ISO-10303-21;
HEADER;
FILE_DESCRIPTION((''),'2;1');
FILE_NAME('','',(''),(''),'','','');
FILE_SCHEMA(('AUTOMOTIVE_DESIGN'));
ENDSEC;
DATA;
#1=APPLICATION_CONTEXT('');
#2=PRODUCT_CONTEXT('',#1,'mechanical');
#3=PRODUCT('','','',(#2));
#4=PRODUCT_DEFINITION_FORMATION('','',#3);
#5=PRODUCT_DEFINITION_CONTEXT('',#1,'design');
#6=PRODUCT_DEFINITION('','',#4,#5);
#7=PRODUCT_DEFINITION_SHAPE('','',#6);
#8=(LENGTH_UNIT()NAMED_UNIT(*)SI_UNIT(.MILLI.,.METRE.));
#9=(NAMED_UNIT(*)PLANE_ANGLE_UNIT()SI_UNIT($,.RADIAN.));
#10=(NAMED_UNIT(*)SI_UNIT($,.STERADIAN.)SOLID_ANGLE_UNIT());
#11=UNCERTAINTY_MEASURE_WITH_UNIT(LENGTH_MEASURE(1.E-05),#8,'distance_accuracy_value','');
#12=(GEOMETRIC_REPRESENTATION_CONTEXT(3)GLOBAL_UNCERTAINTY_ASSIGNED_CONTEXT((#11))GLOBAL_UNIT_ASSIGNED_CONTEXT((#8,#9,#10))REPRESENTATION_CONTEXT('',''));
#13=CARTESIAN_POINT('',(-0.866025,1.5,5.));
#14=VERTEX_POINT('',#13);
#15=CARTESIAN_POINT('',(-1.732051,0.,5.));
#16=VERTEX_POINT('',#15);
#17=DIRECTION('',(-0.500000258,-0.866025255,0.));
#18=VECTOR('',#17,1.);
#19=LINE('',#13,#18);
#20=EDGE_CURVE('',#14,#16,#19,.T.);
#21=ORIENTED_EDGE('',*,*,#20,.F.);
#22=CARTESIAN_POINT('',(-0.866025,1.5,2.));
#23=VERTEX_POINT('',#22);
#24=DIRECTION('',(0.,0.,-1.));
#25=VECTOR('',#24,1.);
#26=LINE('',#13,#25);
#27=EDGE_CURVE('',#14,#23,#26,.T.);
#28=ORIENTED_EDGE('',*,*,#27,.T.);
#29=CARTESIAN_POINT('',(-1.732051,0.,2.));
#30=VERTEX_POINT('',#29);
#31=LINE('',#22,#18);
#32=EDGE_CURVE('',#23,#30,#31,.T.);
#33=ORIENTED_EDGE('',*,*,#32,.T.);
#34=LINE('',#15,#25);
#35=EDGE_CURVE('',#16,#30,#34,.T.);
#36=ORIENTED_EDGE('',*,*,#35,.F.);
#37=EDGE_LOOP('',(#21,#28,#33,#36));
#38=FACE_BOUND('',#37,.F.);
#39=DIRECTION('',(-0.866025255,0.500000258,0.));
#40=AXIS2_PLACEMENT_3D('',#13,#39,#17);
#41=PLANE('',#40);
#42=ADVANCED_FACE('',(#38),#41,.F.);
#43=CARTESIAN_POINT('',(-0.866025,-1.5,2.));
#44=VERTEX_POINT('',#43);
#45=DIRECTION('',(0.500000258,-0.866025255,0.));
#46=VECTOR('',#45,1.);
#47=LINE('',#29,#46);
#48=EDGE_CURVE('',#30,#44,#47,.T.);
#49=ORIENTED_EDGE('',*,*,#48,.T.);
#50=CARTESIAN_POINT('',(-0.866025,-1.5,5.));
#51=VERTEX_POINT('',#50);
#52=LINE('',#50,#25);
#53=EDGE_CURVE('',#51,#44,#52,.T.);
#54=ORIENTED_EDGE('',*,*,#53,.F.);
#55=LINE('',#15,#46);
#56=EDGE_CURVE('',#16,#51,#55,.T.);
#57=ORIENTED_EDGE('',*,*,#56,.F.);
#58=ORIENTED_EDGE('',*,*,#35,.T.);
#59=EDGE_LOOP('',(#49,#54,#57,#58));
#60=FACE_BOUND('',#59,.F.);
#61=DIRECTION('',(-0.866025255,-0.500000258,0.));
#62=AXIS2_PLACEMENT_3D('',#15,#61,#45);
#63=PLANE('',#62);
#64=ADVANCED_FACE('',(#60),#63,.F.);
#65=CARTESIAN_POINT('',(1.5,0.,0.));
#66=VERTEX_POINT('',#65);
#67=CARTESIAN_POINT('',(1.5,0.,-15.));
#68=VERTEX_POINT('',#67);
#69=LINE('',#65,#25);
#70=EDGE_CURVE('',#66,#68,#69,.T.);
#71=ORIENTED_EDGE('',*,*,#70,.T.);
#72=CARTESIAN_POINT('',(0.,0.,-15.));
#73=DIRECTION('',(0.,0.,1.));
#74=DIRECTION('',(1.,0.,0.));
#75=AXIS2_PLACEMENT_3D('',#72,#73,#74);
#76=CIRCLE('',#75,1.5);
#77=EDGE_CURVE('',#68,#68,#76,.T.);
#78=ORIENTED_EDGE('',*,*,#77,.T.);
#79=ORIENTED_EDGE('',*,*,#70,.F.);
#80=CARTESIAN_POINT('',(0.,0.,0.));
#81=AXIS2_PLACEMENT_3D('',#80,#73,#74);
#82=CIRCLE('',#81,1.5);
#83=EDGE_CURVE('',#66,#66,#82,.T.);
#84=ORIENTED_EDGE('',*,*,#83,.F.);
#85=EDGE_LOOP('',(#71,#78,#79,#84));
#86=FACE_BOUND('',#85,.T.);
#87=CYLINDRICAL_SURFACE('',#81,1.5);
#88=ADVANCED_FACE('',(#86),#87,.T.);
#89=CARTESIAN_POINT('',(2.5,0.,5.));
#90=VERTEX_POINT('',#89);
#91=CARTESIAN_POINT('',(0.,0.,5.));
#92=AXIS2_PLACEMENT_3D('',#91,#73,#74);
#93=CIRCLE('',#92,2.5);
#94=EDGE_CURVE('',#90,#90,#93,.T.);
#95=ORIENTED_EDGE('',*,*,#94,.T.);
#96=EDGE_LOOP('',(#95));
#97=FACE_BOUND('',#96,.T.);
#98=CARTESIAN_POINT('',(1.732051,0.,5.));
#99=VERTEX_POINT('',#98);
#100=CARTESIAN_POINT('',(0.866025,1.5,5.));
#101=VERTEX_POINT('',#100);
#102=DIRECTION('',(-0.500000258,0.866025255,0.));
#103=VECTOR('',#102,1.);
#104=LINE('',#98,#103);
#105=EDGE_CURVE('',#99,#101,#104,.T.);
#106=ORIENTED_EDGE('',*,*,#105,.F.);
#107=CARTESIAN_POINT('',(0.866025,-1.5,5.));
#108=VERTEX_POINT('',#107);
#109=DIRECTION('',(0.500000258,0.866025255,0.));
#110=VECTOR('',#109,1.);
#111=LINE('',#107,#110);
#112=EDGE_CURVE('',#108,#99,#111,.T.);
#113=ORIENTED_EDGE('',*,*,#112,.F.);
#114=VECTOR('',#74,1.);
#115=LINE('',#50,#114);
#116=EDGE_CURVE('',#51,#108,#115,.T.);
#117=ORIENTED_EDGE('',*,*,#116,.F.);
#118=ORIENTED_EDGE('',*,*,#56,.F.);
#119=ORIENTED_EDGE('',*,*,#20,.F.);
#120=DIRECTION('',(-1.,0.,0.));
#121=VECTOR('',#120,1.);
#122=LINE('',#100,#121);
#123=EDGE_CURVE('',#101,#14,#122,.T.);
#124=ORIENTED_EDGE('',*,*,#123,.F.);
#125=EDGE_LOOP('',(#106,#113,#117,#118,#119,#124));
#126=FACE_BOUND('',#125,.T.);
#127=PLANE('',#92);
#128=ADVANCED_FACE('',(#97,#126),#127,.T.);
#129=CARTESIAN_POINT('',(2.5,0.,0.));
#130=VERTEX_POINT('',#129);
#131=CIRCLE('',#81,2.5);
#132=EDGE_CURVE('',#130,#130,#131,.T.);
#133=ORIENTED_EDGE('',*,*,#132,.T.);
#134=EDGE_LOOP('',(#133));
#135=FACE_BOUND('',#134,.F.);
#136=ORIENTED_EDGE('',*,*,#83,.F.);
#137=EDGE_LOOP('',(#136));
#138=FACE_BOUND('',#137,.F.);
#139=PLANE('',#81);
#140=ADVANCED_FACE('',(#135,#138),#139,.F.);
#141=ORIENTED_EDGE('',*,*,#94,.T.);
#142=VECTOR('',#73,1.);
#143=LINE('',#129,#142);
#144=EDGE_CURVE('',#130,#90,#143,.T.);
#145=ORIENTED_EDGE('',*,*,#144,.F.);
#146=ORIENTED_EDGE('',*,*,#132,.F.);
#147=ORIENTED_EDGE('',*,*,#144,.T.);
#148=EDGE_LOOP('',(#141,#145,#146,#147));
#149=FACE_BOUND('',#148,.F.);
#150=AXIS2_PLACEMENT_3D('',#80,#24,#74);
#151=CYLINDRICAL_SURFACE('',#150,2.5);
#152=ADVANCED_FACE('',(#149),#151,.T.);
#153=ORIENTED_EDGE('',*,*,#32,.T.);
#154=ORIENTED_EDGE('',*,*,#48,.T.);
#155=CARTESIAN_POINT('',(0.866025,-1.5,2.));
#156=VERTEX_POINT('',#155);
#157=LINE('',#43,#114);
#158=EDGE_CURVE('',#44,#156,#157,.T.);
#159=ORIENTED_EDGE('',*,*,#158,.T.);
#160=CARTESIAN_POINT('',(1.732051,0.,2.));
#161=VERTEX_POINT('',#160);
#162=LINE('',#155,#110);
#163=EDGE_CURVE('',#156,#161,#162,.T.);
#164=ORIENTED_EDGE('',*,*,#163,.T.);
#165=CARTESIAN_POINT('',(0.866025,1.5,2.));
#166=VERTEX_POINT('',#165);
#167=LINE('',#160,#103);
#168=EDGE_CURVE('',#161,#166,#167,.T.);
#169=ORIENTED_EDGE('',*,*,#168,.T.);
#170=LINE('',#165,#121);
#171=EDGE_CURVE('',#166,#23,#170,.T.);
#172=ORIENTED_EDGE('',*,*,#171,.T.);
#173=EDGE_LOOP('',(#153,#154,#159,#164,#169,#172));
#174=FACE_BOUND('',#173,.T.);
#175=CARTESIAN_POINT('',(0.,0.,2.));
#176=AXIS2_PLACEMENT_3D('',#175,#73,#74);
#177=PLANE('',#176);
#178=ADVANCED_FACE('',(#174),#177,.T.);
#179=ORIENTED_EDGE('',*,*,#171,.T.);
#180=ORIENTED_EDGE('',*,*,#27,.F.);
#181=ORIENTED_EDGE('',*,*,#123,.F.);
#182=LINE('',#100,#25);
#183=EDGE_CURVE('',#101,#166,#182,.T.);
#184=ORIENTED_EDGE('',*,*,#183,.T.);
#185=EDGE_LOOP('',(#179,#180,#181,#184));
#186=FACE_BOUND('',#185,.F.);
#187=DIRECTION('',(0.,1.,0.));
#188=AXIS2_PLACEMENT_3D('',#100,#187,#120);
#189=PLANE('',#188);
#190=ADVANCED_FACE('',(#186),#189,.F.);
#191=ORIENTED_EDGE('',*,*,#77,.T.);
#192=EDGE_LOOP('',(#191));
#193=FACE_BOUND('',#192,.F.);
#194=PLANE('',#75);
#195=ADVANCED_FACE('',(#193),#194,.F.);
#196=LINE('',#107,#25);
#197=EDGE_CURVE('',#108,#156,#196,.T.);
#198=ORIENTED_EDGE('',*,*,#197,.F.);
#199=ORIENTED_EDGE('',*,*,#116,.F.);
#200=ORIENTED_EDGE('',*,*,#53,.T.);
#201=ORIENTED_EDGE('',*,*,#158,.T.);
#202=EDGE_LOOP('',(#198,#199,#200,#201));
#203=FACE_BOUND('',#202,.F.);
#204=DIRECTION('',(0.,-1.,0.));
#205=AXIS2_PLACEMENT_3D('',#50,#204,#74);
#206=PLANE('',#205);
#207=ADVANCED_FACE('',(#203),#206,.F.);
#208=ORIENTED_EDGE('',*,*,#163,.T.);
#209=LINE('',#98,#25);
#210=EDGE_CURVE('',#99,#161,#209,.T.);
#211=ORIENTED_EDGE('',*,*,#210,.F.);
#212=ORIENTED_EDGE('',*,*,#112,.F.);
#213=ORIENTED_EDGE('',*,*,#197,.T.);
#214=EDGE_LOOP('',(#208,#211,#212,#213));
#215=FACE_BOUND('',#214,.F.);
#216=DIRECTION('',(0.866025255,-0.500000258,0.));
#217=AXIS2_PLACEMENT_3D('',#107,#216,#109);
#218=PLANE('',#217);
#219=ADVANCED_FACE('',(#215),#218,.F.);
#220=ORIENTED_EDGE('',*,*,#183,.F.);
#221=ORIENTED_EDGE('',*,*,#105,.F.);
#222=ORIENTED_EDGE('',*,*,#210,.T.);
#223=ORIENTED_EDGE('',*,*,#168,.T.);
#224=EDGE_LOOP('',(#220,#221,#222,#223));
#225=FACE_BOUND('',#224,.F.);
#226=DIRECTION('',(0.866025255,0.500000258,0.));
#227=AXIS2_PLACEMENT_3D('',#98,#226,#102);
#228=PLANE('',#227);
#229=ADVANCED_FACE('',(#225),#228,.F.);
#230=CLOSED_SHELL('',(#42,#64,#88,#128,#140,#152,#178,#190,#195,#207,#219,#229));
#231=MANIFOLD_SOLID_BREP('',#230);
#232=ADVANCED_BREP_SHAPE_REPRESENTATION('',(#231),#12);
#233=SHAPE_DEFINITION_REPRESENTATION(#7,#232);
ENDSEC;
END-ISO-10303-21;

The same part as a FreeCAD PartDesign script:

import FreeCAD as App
import Part
import Sketcher

V = App.Vector
Q = App.Units.Quantity

doc = App.newDocument("Part")
body = doc.addObject("PartDesign::Body", "Body")

# Sketch on XY plane
sketch1 = body.newObject("Sketcher::SketchObject", "Sketch")
sketch1.AttachmentSupport = (doc.getObject("XY_Plane"), [""])
sketch1.MapMode = "FlatFace"
sketch1.addGeometry(Part.Circle(V(0, 0, 0), V(0, 0, 1), 1.5), False)
sketch1.addConstraint([
    Sketcher.Constraint("Coincident", 0, 3, -1, 1),
    Sketcher.Constraint("Diameter", 0, 3.0),
])
pad1 = body.newObject("PartDesign::Pad", "Pad")
pad1.Profile = sketch1
pad1.Length = 15
pad1.Reversed = True

# Sketch on XY plane
sketch2 = body.newObject("Sketcher::SketchObject", "Sketch001")
sketch2.AttachmentSupport = (doc.getObject("XY_Plane"), [""])
sketch2.MapMode = "FlatFace"
sketch2.addGeometry(Part.Circle(V(0, 0, 0), V(0, 0, 1), 2.5), False)
sketch2.addConstraint([
    Sketcher.Constraint("Coincident", 0, 3, -1, 1),
    Sketcher.Constraint("Diameter", 0, 5.0),
])
pad2 = body.newObject("PartDesign::Pad", "Pad001")
pad2.Profile = sketch2
pad2.Length = 5

# Sketch on XY plane
sketch3 = body.newObject("Sketcher::SketchObject", "Sketch002")
sketch3.AttachmentSupport = (doc.getObject("XY_Plane"), [""])
sketch3.MapMode = "FlatFace"
sketch3.AttachmentOffset = App.Placement(V(0, 0, 5), App.Rotation())
sketch3.addGeometry([
    Part.LineSegment(V(-0.9, 1.5, 0), V(-1.7, 0, 0)),  # 0
    Part.LineSegment(V(-1.7, 0, 0), V(-0.9, -1.5, 0)),  # 1
    Part.LineSegment(V(-0.9, -1.5, 0), V(0.9, -1.5, 0)),  # 2
    Part.LineSegment(V(0.9, -1.5, 0), V(1.7, 0, 0)),  # 3
    Part.LineSegment(V(1.7, 0, 0), V(0.9, 1.5, 0)),  # 4
    Part.LineSegment(V(0.9, 1.5, 0), V(-0.9, 1.5, 0)),  # 5
], False)
sketch3.addConstraint([
    Sketcher.Constraint("Coincident", 0, 2, 1, 1),
    Sketcher.Constraint("Coincident", 1, 2, 2, 1),
    Sketcher.Constraint("Coincident", 2, 2, 3, 1),
    Sketcher.Constraint("Coincident", 3, 2, 4, 1),
    Sketcher.Constraint("Coincident", 4, 2, 5, 1),
    Sketcher.Constraint("Coincident", 5, 2, 0, 1),
    Sketcher.Constraint("Horizontal", 2),
    Sketcher.Constraint("Horizontal", 5),
    Sketcher.Constraint("Symmetric", 0, 2, 3, 2, -1, 1),
    Sketcher.Constraint("Symmetric", 1, 2, 4, 2, -1, 1),
    Sketcher.Constraint("PointOnObject", 0, 2, -1),
    Sketcher.Constraint("Parallel", 0, 3),
    Sketcher.Constraint("Vertical", 2, 2, 4, 2),
    Sketcher.Constraint("Angle", 0, Q("-120.000017 deg")),
    Sketcher.Constraint("DistanceY", 2, 2, 4, 2, 3.0),
    Sketcher.Constraint("DistanceX", 2, 1, 2, 2, 1.73205),
])
pocket1 = body.newObject("PartDesign::Pocket", "Pocket")
pocket1.Profile = sketch3
pocket1.Length = 3

doc.recompute()
